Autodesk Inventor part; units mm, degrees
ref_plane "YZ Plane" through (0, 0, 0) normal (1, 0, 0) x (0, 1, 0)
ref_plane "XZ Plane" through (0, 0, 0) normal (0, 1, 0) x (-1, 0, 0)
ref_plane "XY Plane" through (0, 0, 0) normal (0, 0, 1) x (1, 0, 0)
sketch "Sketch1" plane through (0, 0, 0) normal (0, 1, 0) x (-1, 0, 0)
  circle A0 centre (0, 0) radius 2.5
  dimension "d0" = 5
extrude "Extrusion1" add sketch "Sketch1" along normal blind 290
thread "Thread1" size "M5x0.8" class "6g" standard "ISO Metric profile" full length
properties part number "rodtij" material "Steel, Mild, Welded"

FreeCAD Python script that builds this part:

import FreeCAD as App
import Part
import Sketcher

doc = App.newDocument("Part")
params = doc.addObject("Spreadsheet::Sheet", "Params")
for row, (alias, value) in enumerate([
    ("sketch1_diameter", "5 mm"),
    ("pad1_length", "290 mm"),
], start=1):
    params.set(f"A{row}", alias)
    params.set(f"B{row}", "=" + value)
    params.setAlias(f"B{row}", alias)

body = doc.addObject("PartDesign::Body", "Body")

sketch1 = doc.addObject("Sketcher::SketchObject", "Sketch")
body.addObject(sketch1)
sketch1.AttachmentSupport = (doc.XZ_Plane, [""])
sketch1.MapMode = "FlatFace"
sketch1.addGeometry(Part.Circle(App.Vector(0, 0, 0), App.Vector(0, 0, 1), 2.5), False)
sketch1.addConstraint([
    Sketcher.Constraint("Coincident", 0, 3, -1, 1),
    Sketcher.Constraint("Diameter", 0, 5.0),
])
sketch1.setExpression("Constraints[1]", "Params.sketch1_diameter")
pad1 = doc.addObject("PartDesign::Pad", "Pad")
body.addObject(pad1)
pad1.Profile = sketch1
pad1.setExpression("Length", "Params.pad1_length")
pad1.Reversed = True

doc.recompute()
